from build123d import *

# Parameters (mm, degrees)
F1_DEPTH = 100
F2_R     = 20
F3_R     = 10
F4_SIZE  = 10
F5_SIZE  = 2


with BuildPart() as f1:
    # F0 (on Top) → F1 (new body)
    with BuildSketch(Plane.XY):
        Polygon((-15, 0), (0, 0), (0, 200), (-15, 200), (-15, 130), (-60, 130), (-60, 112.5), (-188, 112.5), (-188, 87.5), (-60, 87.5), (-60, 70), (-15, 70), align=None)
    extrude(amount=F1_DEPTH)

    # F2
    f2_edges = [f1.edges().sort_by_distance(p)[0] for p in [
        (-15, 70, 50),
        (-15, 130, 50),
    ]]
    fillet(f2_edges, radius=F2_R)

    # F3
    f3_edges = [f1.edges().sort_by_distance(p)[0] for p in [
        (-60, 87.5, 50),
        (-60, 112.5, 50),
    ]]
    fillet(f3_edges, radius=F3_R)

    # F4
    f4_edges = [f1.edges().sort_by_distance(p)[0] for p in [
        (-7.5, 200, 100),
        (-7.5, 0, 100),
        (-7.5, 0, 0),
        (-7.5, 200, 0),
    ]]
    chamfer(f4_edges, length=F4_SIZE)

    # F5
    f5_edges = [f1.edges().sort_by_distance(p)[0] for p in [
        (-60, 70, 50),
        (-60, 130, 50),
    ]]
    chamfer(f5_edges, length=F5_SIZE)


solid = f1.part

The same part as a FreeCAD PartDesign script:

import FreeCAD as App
import Part
import Sketcher
Q = App.Units.Quantity


def edges_at(feature, points):
    """Names of the edges that pass closest to the given points."""
    edges = feature.Shape.Edges
    near = lambda p: min(range(len(edges)), key=lambda i: edges[i].distToShape(Part.Vertex(*p))[0])
    return sorted({f"Edge{near(p) + 1}" for p in points})


def add_polygon(sketch, points):
    """Adds a closed chain of lines whose ends are joined by coincident constraints."""
    first, n = sketch.GeometryCount, len(points)
    for a, b in zip(points, points[1:] + points[:1]):
        sketch.addGeometry(Part.LineSegment(App.Vector(*a, 0), App.Vector(*b, 0)), False)
    for i in range(n):
        sketch.addConstraint(Sketcher.Constraint("Coincident", first + i, 2, first + (i + 1) % n, 1))

doc = App.newDocument("Part")
body = doc.addObject("PartDesign::Body", "Body")

# Sketch on XY plane
sketch1 = doc.addObject("Sketcher::SketchObject", "Sketch")
body.addObject(sketch1)
sketch1.AttachmentSupport = (doc.XY_Plane, [""])
sketch1.MapMode = "FlatFace"
add_polygon(sketch1, [(-15, 0), (0, 0), (0, 200), (-15, 200), (-15, 130), (-60, 130), (-60, 112.5), (-188, 112.5), (-188, 87.5), (-60, 87.5), (-60, 70), (-15, 70)])  # lines 0-11
sketch1.addConstraint([
    Sketcher.Constraint("Horizontal", 0),
    Sketcher.Constraint("Vertical", 1),
    Sketcher.Constraint("Horizontal", 2),
    Sketcher.Constraint("Vertical", 3),
    Sketcher.Constraint("Horizontal", 4),
    Sketcher.Constraint("Vertical", 5),
    Sketcher.Constraint("Horizontal", 6),
    Sketcher.Constraint("Vertical", 7),
    Sketcher.Constraint("Horizontal", 8),
    Sketcher.Constraint("Vertical", 9),
    Sketcher.Constraint("Horizontal", 10),
    Sketcher.Constraint("Vertical", 11),
    Sketcher.Constraint("Coincident", 0, 2, -1, 1),
    Sketcher.Constraint("Vertical", 5, 2, 8, 2),
    Sketcher.Constraint("Vertical", 3, 2, 10, 2),
    Sketcher.Constraint("Equal", 5, 9),
    Sketcher.Constraint("Equal", 3, 11),
    Sketcher.Constraint("DistanceX", 0, 1, 0, 2, Q("15 mm")),
    Sketcher.Constraint("DistanceX", 4, 2, 4, 1, Q("45 mm")),
    Sketcher.Constraint("DistanceX", 6, 2, 6, 1, Q("128 mm")),
    Sketcher.Constraint("DistanceY", 1, 1, 1, 2, Q("200 mm")),
    Sketcher.Constraint("DistanceY", 3, 2, 3, 1, Q("70 mm")),
    Sketcher.Constraint("DistanceY", 7, 2, 7, 1, Q("25 mm")),
])
pad1 = doc.addObject("PartDesign::Pad", "Pad")
body.addObject(pad1)
pad1.Profile = sketch1
pad1.Length = 100
doc.recompute()

fillet = doc.addObject("PartDesign::Fillet", "Fillet")
body.addObject(fillet)
fillet.Base = (pad1, edges_at(pad1, [(-15, 70, 50), (-15, 130, 50)]))
fillet.Radius = 20
doc.recompute()

fillet2 = doc.addObject("PartDesign::Fillet", "Fillet001")
body.addObject(fillet2)
fillet2.Base = (fillet, edges_at(fillet, [(-60, 87.5, 50), (-60, 112.5, 50)]))
fillet2.Radius = 10
doc.recompute()

chamfer = doc.addObject("PartDesign::Chamfer", "Chamfer")
body.addObject(chamfer)
chamfer.Base = (fillet2, edges_at(fillet2, [
    (-7.5, 200, 100),
    (-7.5, 0, 100),
    (-7.5, 0, 0),
    (-7.5, 200, 0),
]))
chamfer.Size = 10
doc.recompute()

chamfer2 = doc.addObject("PartDesign::Chamfer", "Chamfer001")
body.addObject(chamfer2)
chamfer2.Base = (chamfer, edges_at(chamfer, [(-60, 70, 50), (-60, 130, 50)]))
chamfer2.Size = 2

doc.recompute()
